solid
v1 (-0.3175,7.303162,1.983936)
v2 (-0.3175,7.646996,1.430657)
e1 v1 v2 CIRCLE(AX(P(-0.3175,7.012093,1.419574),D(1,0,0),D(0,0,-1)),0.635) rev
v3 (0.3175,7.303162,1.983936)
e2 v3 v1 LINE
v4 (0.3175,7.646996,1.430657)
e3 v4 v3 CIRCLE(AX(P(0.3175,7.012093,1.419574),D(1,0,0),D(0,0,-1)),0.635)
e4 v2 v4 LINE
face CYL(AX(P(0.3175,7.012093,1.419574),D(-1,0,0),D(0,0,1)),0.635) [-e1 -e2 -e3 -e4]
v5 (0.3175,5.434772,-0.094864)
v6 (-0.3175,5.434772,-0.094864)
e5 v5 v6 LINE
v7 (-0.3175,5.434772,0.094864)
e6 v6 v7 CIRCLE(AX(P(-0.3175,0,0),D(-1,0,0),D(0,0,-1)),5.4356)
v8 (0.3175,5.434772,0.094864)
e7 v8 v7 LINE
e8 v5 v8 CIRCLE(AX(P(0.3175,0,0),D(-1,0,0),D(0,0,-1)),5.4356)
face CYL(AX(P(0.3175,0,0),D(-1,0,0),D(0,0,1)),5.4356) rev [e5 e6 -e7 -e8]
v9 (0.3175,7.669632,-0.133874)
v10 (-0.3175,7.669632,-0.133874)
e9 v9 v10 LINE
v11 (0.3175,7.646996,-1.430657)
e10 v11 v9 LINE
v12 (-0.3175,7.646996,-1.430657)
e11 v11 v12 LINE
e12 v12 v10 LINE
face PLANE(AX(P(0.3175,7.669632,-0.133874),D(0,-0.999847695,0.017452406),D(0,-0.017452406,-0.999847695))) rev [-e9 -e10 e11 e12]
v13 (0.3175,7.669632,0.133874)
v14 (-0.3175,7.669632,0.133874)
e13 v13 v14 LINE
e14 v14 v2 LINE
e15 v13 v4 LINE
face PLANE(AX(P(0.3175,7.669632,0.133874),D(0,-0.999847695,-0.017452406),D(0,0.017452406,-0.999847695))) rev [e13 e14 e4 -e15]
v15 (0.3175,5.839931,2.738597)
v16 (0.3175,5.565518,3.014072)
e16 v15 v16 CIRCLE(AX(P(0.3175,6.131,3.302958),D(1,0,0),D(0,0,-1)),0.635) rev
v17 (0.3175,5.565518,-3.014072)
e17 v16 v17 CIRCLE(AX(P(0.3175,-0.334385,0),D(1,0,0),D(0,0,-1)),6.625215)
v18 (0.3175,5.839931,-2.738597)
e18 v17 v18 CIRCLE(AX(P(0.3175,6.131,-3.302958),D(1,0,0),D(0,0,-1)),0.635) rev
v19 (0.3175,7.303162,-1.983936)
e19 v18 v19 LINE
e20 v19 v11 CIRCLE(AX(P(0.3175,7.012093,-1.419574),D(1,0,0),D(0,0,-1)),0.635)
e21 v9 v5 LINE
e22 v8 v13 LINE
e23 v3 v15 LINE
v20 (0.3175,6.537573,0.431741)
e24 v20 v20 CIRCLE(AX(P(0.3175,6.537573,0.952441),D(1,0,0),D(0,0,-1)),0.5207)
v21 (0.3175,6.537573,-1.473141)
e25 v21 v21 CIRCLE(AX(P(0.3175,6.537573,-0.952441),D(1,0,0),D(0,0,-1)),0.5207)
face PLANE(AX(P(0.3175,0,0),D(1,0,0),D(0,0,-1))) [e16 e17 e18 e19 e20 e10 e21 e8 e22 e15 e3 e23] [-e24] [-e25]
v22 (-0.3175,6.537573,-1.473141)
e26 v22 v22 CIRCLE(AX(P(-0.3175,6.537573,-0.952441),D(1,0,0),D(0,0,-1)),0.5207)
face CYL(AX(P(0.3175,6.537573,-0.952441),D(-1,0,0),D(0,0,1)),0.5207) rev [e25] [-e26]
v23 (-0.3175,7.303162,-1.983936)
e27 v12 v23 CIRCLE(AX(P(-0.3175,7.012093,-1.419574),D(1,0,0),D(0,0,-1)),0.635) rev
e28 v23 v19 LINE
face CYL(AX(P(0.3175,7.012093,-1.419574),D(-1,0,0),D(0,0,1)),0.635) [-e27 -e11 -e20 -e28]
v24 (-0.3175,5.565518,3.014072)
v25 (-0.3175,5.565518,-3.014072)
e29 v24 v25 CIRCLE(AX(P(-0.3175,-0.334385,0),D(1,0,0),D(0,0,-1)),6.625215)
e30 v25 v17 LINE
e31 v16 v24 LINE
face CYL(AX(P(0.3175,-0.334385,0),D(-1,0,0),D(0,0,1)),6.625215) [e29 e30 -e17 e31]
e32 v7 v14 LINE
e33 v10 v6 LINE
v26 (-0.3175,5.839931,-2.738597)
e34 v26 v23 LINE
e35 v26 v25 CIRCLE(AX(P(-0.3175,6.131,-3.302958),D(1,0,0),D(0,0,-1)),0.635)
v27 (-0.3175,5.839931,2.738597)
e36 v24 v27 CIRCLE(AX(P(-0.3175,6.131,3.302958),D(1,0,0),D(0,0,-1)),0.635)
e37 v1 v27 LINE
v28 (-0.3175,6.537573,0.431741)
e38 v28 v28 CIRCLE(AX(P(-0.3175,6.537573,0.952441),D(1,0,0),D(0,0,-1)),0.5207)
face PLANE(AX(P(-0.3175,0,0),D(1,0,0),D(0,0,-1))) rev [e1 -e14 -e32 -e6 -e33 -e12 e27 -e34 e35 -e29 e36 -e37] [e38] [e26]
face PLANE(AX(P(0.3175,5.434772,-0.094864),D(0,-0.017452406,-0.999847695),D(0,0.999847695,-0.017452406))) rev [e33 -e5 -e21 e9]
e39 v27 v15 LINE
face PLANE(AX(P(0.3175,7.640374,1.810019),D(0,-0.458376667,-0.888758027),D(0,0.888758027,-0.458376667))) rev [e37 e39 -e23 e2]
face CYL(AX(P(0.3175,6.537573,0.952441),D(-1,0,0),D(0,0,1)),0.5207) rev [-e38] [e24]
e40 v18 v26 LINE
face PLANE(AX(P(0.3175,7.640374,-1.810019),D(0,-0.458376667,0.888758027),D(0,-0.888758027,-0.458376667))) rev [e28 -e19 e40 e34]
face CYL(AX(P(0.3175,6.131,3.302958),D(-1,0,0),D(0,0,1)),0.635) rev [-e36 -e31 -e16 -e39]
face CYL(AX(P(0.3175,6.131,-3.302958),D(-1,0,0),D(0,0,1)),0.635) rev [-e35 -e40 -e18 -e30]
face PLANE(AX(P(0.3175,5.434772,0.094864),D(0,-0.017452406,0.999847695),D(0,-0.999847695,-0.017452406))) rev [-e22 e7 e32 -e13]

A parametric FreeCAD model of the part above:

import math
import FreeCAD as App
import Part
import Sketcher
Q = App.Units.Quantity


def edges_at(feature, points):
    """Names of the edges that pass closest to the given points."""
    edges = feature.Shape.Edges
    near = lambda p: min(range(len(edges)), key=lambda i: edges[i].distToShape(Part.Vertex(*p))[0])
    return sorted({f"Edge{near(p) + 1}" for p in points})

doc = App.newDocument("Part")
body = doc.addObject("PartDesign::Body", "Body")

sketch1 = doc.addObject("Sketcher::SketchObject", "Sketch")
body.addObject(sketch1)
sketch1.AttachmentSupport = (doc.YZ_Plane, [""])
sketch1.MapMode = "FlatFace"
sketch1.addGeometry([
    Part.LineSegment(App.Vector(5.43, 0.09, 0), App.Vector(7.67, 0.13, 0)),
    Part.LineSegment(App.Vector(7.67, 0.13, 0), App.Vector(7.64, 1.81, 0)),
    Part.LineSegment(App.Vector(7.64, 1.81, 0), App.Vector(5.65, 2.83, 0)),
    Part.ArcOfCircle(Part.Circle(App.Vector(-0.33, 0, 0), App.Vector(0, 0, 1), 6.63), math.radians(25), math.radians(335)),
    Part.LineSegment(App.Vector(5.65, -2.83, 0), App.Vector(7.64, -1.81, 0)),
    Part.LineSegment(App.Vector(7.64, -1.81, 0), App.Vector(7.67, -0.13, 0)),
    Part.LineSegment(App.Vector(7.67, -0.13, 0), App.Vector(5.43, -0.09, 0)),
    Part.ArcOfCircle(Part.Circle(App.Vector(0, 0, 0), App.Vector(0, 0, 1), 5.44), math.radians(1), math.radians(359)),
    Part.Circle(App.Vector(6.54, 0.95, 0), App.Vector(0, 0, 1), 0.52),
    Part.Circle(App.Vector(6.54, -0.95, 0), App.Vector(0, 0, 1), 0.52),
], False)
sketch1.addConstraint([
    Sketcher.Constraint("Coincident", 0, 2, 1, 1),
    Sketcher.Constraint("Coincident", 1, 2, 2, 1),
    Sketcher.Constraint("Coincident", 2, 2, 3, 1),
    Sketcher.Constraint("Coincident", 3, 2, 4, 1),
    Sketcher.Constraint("Coincident", 4, 2, 5, 1),
    Sketcher.Constraint("Coincident", 5, 2, 6, 1),
    Sketcher.Constraint("Coincident", 6, 2, 7, 2),
    Sketcher.Constraint("Coincident", 7, 1, 0, 1),
    Sketcher.Constraint("Coincident", 7, 3, -1, 1),
    Sketcher.Constraint("Equal", 8, 9),
    Sketcher.Constraint("Symmetric", 8, 3, 9, 3, -1),
    Sketcher.Constraint("Symmetric", 2, 2, 3, 2, -1),
    Sketcher.Constraint("Symmetric", 1, 2, 4, 2, -1),
    Sketcher.Constraint("Symmetric", 0, 2, 5, 2, -1),
    Sketcher.Constraint("Perpendicular", 0, 1),
    Sketcher.Constraint("Perpendicular", 5, 6),
    Sketcher.Constraint("Equal", 0, 2),
    Sketcher.Constraint("Diameter", 8, Q("0.041 in")),
    Sketcher.Constraint("Angle", 0, Q("1 deg")),
    Sketcher.Constraint("Radius", 7, Q("0.214 in")),
    Sketcher.Constraint("Distance", 0, Q("0.088 in")),
    Sketcher.Constraint("Distance", 1, Q("0.066 in")),
    Sketcher.Constraint("Radius", 3, 6.625215),
    Sketcher.Constraint("DistanceY", 8, 3, 2, 2, Q("0.0741 in")),
    Sketcher.Constraint("DistanceX", 8, 3, 1, 2, 1.102801),
    Sketcher.Constraint("DistanceY", 3, 2, 1, 2, 4.644601),
    Sketcher.Constraint("DistanceY", -1, 1, 8, 3, 0.952441),
])
pad1 = doc.addObject("PartDesign::Pad", "Pad")
body.addObject(pad1)
pad1.Profile = sketch1
pad1.Length = Q("0.025 in")
pad1.Midplane = True
doc.recompute()

fillet = doc.addObject("PartDesign::Fillet", "Fillet")
body.addObject(fillet)
fillet.Base = (pad1, edges_at(pad1, [
    (0, 7.64, -1.81),
    (0, 5.654, -2.835),
    (0, 5.654, 2.835),
    (0, 7.64, 1.81),
]))
fillet.Radius = Q("0.025 in")

doc.recompute()
